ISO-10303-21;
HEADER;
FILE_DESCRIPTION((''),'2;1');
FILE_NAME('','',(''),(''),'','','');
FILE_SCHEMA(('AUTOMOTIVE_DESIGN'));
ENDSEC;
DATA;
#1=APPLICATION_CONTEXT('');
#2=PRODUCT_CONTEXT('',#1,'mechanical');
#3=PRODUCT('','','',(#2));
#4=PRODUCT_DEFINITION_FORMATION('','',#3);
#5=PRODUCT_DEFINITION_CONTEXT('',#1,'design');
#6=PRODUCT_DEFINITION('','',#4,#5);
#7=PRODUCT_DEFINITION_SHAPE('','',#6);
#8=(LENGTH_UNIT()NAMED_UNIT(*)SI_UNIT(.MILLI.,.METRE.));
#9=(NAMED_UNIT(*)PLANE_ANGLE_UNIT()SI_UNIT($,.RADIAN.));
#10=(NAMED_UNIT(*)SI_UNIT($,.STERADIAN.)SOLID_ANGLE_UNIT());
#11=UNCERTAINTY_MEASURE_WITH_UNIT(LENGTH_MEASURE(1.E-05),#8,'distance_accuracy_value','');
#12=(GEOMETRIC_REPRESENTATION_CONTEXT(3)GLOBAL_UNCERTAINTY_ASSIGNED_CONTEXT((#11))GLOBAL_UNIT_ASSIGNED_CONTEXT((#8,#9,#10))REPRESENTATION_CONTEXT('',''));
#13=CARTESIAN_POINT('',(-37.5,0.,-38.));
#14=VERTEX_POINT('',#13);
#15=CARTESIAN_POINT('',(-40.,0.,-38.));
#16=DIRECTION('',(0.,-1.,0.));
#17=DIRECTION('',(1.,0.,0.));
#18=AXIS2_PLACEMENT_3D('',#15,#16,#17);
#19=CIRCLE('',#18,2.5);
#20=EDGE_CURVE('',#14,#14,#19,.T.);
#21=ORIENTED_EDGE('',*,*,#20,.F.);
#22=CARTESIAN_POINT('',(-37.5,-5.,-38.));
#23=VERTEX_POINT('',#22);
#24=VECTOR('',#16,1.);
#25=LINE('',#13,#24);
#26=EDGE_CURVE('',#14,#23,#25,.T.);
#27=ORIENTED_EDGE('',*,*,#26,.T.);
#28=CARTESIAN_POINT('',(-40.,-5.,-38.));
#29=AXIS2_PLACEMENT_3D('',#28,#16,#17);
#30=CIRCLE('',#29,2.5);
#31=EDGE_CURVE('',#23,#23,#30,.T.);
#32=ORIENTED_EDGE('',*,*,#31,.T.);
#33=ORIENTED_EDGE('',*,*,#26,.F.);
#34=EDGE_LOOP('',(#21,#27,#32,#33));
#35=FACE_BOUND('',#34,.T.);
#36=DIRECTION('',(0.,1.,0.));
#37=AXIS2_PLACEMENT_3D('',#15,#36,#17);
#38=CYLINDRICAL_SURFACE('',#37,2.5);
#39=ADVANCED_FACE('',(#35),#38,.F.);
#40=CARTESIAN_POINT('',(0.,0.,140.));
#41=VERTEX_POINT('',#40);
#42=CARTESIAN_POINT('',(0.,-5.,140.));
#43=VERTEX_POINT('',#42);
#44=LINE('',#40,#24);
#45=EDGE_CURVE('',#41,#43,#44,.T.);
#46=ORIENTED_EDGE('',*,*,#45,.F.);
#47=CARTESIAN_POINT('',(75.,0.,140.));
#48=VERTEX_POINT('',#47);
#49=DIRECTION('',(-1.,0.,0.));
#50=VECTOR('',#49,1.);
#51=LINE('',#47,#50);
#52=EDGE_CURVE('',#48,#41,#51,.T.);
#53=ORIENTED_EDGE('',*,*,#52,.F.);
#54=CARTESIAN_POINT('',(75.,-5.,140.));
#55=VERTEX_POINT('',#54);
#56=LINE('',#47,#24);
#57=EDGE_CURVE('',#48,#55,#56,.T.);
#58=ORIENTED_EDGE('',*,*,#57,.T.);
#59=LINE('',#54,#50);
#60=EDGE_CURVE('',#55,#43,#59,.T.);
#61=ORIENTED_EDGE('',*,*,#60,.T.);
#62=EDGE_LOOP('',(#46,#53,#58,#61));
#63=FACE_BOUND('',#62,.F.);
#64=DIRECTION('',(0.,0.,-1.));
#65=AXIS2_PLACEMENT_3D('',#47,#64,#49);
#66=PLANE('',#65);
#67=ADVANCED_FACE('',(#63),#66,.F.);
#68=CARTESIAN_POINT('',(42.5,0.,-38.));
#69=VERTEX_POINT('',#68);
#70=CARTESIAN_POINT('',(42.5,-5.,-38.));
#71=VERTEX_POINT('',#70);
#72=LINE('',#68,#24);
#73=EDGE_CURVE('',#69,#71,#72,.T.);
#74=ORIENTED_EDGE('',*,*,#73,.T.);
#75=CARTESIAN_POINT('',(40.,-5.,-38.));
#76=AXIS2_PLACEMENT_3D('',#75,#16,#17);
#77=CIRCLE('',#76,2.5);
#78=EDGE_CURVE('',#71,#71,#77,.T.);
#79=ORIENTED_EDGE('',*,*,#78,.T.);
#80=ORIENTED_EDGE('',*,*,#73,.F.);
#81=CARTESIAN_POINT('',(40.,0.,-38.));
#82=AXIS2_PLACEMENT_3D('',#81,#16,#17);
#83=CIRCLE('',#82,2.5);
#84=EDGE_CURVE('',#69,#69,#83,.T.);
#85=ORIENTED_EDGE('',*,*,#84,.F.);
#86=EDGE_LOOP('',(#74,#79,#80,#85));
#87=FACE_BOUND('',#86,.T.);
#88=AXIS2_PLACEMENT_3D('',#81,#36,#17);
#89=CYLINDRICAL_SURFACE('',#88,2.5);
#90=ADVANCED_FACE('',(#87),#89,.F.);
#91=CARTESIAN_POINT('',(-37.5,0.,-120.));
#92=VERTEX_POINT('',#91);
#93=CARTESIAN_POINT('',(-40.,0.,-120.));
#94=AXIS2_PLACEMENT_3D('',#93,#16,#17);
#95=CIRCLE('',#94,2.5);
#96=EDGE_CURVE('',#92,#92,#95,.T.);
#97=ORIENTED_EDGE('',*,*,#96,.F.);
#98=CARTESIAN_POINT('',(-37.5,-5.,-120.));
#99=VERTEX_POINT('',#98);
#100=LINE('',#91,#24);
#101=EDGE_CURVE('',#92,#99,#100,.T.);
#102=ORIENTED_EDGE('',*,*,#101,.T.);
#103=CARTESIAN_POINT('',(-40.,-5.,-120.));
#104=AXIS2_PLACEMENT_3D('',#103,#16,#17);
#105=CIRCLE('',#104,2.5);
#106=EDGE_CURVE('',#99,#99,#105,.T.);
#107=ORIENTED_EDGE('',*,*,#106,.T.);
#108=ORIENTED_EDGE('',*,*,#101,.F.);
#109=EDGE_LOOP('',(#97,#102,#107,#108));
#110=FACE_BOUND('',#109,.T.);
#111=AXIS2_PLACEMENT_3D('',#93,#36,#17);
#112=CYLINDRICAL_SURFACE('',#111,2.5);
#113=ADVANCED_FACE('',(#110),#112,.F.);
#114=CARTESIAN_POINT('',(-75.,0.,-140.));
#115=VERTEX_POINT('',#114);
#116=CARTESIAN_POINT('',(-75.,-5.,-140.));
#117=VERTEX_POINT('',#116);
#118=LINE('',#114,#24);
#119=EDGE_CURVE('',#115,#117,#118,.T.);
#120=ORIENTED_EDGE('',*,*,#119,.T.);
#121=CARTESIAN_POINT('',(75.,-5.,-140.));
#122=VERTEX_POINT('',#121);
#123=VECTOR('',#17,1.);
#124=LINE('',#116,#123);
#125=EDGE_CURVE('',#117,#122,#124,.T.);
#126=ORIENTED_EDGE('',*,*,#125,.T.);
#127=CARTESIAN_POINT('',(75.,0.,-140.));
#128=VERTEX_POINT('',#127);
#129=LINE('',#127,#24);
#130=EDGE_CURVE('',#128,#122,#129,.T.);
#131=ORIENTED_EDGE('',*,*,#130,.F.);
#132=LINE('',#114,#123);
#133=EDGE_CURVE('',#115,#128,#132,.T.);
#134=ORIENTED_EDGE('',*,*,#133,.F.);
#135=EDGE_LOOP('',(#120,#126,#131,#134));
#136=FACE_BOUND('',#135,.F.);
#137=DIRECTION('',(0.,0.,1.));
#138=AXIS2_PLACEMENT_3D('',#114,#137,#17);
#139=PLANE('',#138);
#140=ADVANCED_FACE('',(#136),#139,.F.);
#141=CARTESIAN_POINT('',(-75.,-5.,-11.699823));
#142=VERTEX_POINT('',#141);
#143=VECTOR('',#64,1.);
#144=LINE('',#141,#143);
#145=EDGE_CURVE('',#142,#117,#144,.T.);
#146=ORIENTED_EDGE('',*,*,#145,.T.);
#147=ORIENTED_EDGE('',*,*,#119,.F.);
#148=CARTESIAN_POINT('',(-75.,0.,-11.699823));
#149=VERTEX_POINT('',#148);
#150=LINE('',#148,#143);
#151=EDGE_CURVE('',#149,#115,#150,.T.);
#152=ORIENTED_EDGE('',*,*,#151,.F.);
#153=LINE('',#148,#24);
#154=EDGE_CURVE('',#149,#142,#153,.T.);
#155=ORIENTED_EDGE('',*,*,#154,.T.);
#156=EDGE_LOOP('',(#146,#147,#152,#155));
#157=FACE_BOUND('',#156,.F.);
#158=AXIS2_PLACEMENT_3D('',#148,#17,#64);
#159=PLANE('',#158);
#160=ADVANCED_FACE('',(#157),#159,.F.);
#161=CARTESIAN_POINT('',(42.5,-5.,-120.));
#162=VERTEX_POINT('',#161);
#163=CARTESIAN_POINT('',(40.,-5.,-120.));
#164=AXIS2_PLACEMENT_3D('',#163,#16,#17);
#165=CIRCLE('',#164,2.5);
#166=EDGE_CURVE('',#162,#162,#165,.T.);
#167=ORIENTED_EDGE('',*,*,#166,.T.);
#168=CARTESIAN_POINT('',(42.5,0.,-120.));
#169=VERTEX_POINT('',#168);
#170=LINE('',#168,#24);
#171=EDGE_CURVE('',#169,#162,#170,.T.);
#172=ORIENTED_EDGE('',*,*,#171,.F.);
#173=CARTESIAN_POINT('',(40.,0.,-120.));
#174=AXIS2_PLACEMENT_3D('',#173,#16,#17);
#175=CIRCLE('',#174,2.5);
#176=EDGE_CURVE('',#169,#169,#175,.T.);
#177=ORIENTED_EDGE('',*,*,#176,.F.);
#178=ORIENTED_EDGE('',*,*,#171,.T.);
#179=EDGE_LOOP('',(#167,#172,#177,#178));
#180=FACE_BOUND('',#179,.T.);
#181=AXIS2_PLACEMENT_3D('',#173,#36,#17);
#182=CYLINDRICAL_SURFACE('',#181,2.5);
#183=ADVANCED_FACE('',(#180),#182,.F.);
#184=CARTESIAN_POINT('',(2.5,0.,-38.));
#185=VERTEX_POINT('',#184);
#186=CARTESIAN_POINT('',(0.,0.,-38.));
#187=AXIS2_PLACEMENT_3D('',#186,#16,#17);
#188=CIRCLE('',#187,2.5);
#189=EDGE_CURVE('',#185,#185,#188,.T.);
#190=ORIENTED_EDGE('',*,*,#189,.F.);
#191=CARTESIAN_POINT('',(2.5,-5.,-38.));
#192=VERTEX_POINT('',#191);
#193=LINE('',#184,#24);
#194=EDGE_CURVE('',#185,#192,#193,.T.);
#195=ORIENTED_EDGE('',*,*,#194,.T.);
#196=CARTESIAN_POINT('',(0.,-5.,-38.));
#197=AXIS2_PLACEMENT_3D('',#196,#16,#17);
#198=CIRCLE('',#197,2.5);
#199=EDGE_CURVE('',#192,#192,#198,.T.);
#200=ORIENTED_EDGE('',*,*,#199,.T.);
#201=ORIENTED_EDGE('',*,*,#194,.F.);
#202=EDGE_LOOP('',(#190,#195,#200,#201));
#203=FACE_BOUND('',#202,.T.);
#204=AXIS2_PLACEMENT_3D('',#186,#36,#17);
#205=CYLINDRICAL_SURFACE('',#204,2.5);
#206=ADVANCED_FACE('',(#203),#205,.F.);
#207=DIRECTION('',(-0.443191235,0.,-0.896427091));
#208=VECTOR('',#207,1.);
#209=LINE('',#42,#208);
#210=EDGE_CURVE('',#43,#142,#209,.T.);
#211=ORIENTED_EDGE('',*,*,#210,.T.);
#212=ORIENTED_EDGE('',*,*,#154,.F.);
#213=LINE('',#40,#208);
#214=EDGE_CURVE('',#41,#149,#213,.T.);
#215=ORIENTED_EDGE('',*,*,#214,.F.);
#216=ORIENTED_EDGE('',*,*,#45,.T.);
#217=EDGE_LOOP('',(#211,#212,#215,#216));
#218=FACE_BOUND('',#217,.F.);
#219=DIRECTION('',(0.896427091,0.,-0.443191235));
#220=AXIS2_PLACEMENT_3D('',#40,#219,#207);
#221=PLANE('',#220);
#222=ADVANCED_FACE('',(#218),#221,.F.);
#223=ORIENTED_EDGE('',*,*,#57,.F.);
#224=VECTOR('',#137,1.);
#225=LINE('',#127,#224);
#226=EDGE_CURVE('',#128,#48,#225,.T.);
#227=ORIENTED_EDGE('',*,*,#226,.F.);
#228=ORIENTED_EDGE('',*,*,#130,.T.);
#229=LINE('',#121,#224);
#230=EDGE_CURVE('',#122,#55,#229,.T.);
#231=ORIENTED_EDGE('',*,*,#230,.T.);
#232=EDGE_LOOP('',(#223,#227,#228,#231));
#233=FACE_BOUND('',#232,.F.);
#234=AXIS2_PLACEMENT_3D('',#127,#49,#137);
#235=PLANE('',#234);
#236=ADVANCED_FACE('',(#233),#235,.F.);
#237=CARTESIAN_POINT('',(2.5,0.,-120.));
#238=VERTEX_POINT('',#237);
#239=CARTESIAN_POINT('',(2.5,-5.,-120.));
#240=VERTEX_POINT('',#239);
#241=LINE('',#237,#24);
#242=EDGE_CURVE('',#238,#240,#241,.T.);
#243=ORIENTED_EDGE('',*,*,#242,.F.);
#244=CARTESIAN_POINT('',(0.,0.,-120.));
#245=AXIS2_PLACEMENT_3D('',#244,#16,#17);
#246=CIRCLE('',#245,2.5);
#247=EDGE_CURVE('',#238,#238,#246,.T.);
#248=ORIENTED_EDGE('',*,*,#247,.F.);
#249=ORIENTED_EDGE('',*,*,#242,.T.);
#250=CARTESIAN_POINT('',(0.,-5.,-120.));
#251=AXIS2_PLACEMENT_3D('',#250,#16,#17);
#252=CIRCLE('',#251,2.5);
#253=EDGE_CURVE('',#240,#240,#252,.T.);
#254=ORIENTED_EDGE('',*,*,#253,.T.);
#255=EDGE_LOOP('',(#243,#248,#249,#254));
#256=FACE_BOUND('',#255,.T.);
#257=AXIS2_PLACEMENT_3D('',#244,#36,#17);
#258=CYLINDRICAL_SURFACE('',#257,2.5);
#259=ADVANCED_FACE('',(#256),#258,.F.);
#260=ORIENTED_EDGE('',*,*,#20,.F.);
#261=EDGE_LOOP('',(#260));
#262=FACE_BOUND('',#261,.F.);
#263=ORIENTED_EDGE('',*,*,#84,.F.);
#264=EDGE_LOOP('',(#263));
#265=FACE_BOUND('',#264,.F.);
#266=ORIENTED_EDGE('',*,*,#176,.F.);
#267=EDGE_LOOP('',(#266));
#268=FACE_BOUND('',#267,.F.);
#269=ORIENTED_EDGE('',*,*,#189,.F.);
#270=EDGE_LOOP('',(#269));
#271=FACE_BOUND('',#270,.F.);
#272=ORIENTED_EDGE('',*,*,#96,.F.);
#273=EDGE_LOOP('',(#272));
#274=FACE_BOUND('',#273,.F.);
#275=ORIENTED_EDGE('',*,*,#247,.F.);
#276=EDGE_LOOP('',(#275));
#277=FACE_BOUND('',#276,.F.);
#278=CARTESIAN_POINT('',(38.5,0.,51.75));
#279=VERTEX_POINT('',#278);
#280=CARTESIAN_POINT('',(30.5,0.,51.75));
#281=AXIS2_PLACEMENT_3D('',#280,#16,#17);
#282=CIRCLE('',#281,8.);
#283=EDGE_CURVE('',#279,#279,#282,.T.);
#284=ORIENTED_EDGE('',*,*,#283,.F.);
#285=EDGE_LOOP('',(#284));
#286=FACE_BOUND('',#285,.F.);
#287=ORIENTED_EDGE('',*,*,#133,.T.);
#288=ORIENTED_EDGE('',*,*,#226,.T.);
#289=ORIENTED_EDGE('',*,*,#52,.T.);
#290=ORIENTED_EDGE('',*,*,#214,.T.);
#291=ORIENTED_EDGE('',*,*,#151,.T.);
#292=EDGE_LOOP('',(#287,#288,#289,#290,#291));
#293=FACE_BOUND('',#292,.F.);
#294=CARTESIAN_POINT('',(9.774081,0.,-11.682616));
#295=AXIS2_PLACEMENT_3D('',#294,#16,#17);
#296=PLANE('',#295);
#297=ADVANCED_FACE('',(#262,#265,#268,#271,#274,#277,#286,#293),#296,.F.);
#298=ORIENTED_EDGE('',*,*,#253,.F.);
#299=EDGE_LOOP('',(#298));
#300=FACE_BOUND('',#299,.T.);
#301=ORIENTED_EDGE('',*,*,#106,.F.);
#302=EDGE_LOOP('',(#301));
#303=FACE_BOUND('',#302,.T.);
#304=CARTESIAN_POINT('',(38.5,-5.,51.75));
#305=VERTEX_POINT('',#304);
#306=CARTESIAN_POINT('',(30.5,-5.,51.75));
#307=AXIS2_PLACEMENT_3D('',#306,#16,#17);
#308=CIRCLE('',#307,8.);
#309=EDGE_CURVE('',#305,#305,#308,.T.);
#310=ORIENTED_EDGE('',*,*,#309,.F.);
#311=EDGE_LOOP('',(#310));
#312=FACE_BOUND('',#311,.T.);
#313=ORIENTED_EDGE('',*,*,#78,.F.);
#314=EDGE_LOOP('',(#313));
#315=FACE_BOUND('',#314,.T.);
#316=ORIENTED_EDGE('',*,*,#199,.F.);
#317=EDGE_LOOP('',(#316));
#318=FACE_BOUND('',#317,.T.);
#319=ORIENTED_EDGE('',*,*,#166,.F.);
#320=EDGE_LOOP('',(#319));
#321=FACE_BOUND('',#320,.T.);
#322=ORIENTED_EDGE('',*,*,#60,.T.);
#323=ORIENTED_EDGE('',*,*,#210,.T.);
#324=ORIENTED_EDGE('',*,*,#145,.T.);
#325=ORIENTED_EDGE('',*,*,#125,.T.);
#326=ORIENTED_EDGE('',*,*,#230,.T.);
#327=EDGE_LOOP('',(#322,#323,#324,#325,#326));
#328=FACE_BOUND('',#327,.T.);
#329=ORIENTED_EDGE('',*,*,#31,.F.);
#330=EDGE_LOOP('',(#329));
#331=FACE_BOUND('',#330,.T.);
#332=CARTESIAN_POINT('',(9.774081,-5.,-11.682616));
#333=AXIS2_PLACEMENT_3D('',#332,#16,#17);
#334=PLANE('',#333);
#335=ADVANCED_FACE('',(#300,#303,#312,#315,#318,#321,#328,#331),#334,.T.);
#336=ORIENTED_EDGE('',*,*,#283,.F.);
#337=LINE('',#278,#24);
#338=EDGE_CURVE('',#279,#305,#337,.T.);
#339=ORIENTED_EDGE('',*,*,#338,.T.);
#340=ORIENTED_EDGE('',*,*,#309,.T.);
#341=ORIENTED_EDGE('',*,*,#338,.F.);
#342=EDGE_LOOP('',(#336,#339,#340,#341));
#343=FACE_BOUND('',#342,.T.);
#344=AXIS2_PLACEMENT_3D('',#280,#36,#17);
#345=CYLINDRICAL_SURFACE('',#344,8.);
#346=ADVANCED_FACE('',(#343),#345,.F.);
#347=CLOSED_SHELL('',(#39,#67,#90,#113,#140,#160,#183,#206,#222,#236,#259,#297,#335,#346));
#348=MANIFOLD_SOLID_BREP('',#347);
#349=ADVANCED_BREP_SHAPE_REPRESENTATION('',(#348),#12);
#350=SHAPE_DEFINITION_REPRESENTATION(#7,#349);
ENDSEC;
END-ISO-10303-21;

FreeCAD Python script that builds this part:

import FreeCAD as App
import Part
import Sketcher

V = App.Vector
Q = App.Units.Quantity

doc = App.newDocument("Part")
body = doc.addObject("PartDesign::Body", "Body")

# Sketch on XZ plane
sketch1 = body.newObject("Sketcher::SketchObject", "Sketch")
sketch1.AttachmentSupport = (doc.getObject("XZ_Plane"), [""])
sketch1.MapMode = "FlatFace"
sketch1.addGeometry([
    Part.LineSegment(V(-75, -140, 0), V(75, -140, 0)),  # 0
    Part.LineSegment(V(75, -140, 0), V(75, 140, 0)),  # 1
    Part.LineSegment(V(75, 140, 0), V(0, 140, 0)),  # 2
    Part.LineSegment(V(0, 140, 0), V(-75, -11.7, 0)),  # 3
    Part.LineSegment(V(-75, -11.7, 0), V(-75, -140, 0)),  # 4
    Part.Circle(V(-40, -120, 0), V(0, 0, 1), 2.5),  # 5
    Part.Circle(V(-40, -38, 0), V(0, 0, 1), 2.5),  # 6
    Part.Circle(V(0, -120, 0), V(0, 0, 1), 2.5),  # 7
    Part.Circle(V(40, -120, 0), V(0, 0, 1), 2.5),  # 8
    Part.Circle(V(0, -38, 0), V(0, 0, 1), 2.5),  # 9
    Part.Circle(V(40, -38, 0), V(0, 0, 1), 2.5),  # 10
    Part.Circle(V(30.5, 51.8, 0), V(0, 0, 1), 8),  # 11
], False)
sketch1.addConstraint([
    Sketcher.Constraint("Coincident", 0, 2, 1, 1),
    Sketcher.Constraint("Coincident", 1, 2, 2, 1),
    Sketcher.Constraint("Coincident", 2, 2, 3, 1),
    Sketcher.Constraint("Coincident", 3, 2, 4, 1),
    Sketcher.Constraint("Coincident", 4, 2, 0, 1),
    Sketcher.Constraint("Horizontal", 0),
    Sketcher.Constraint("Vertical", 1),
    Sketcher.Constraint("Horizontal", 2),
    Sketcher.Constraint("Vertical", 4),
    Sketcher.Constraint("Equal", 5, 6),
    Sketcher.Constraint("Equal", 6, 7),
    Sketcher.Constraint("Equal", 7, 8),
    Sketcher.Constraint("Equal", 8, 9),
    Sketcher.Constraint("Equal", 9, 10),
    Sketcher.Constraint("Symmetric", 1, 2, 4, 2, -1, 1),
    Sketcher.Constraint("Symmetric", 5, 3, 8, 3, -2),
    Sketcher.Constraint("Symmetric", 6, 3, 10, 3, -2),
    Sketcher.Constraint("PointOnObject", 7, 3, -2),
    Sketcher.Constraint("PointOnObject", 9, 3, -2),
    Sketcher.Constraint("PointOnObject", 2, 2, -2),
    Sketcher.Constraint("Horizontal", 5, 3, 7, 3),
    Sketcher.Constraint("Horizontal", 6, 3, 9, 3),
    Sketcher.Constraint("Vertical", 5, 3, 6, 3),
    Sketcher.Constraint("Diameter", 5, Q("5 mm")),
    Sketcher.Constraint("Diameter", 11, Q("16 mm")),
    Sketcher.Constraint("DistanceX", 0, 1, 0, 2, Q("150 mm")),
    Sketcher.Constraint("DistanceY", 1, 1, 1, 2, Q("280 mm")),
    Sketcher.Constraint("DistanceX", 5, 3, -1, 1, Q("40 mm")),
    Sketcher.Constraint("DistanceY", 5, 3, -1, 1, Q("120 mm")),
    Sketcher.Constraint("DistanceY", 6, 3, -1, 1, Q("38 mm")),
    Sketcher.Constraint("DistanceX", -1, 1, 11, 3, Q("30.5 mm")),
    Sketcher.Constraint("DistanceY", -1, 1, 11, 3, Q("51.75 mm")),
    Sketcher.Constraint("DistanceY", 4, 2, 4, 1, Q("128.300177 mm")),
])
pad1 = body.newObject("PartDesign::Pad", "Pad")
pad1.Profile = sketch1
pad1.Length = 5

doc.recompute()
